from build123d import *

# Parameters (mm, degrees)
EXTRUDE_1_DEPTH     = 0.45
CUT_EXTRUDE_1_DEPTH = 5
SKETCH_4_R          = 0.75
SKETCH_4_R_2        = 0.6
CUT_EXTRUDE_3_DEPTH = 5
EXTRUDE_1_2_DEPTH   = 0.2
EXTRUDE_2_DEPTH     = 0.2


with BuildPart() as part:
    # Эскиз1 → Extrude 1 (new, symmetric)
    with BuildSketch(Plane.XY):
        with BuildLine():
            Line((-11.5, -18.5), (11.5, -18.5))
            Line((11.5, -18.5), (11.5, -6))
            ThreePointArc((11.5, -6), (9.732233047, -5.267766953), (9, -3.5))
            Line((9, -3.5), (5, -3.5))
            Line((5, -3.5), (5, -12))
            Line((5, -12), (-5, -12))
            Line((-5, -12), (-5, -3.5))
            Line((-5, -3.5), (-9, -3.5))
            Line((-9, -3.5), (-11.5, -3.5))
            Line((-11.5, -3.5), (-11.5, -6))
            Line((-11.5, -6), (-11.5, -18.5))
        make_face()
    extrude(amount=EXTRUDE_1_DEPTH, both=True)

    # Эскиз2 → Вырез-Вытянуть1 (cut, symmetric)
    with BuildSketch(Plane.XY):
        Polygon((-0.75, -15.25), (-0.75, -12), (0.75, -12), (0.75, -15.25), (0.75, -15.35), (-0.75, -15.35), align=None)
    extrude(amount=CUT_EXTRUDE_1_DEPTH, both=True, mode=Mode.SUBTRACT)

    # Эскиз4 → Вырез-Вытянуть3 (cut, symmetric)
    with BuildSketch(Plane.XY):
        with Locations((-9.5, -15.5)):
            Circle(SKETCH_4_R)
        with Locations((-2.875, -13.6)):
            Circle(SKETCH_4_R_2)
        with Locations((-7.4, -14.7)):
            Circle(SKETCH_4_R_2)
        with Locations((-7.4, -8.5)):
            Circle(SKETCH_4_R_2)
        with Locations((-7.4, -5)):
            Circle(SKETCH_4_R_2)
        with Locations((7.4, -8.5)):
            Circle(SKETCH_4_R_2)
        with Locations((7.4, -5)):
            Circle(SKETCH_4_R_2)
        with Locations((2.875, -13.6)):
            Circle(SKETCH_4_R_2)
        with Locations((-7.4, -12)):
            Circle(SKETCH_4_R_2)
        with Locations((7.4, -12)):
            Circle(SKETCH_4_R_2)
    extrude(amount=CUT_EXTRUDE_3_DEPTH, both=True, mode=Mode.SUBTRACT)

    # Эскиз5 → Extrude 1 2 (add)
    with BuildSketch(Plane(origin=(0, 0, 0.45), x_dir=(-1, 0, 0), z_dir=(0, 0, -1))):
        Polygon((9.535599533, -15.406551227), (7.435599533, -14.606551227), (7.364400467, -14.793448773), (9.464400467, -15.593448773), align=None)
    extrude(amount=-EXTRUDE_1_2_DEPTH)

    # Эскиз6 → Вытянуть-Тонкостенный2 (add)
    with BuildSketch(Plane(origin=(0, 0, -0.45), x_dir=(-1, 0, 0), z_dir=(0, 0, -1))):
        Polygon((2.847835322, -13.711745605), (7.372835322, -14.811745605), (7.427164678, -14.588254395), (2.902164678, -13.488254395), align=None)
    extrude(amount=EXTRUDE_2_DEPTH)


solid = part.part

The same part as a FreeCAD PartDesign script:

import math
import FreeCAD as App
import Part
import Sketcher
from FreeCAD import Vector


def add_polygon(sketch, points):
    """Adds a closed chain of lines whose ends are joined by coincident constraints."""
    first, n = sketch.GeometryCount, len(points)
    for a, b in zip(points, points[1:] + points[:1]):
        sketch.addGeometry(Part.LineSegment(App.Vector(*a, 0), App.Vector(*b, 0)), False)
    for i in range(n):
        sketch.addConstraint(Sketcher.Constraint("Coincident", first + i, 2, first + (i + 1) % n, 1))

doc = App.newDocument("Part")
params = doc.addObject("Spreadsheet::Sheet", "Params")
for row, (alias, value) in enumerate([
    ("sketch1_radius", "2.5 mm"),
    ("sketch1_width", "23 mm"),
    ("sketch1_width2", "4 mm"),
    ("sketch1_width3", "10 mm"),
    ("sketch1_height", "15 mm"),
    ("pad1_length", "0.9 mm"),
    ("sketch2_width", "1.5 mm"),
    ("sketch2_height", "3.35 mm"),
    ("pocket1_length", "10 mm"),
    ("sketch3_diameter", "1.5 mm"),
    ("sketch3_diameter2", "1.2 mm"),
    ("pocket2_length", "10 mm"),
    ("sketch4_length", "0.2 mm"),
    ("pad2_length", "0.2 mm"),
    ("sketch5_length", "0.23 mm"),
    ("pad3_length", "0.2 mm"),
], start=1):
    params.set(f"A{row}", alias)
    params.set(f"B{row}", "=" + value)
    params.setAlias(f"B{row}", alias)

body = doc.addObject("PartDesign::Body", "Body")

# Sketch on XY plane
sketch1 = body.newObject("Sketcher::SketchObject", "Sketch")
sketch1.AttachmentSupport = (doc.getObject("XY_Plane"), [""])
sketch1.MapMode = "FlatFace"
sketch1.addGeometry([
    Part.LineSegment(Vector(-11.5, -18.5, 0), Vector(11.5, -18.5, 0)),  # 0
    Part.LineSegment(Vector(11.5, -18.5, 0), Vector(11.5, -6, 0)),  # 1
    Part.ArcOfCircle(Part.Circle(Vector(11.5, -3.5, 0), Vector(0, 0, 1), 2.5), math.radians(180), math.radians(270)),  # 2
    Part.LineSegment(Vector(9, -3.5, 0), Vector(5, -3.5, 0)),  # 3
    Part.LineSegment(Vector(5, -3.5, 0), Vector(5, -12, 0)),  # 4
    Part.LineSegment(Vector(5, -12, 0), Vector(-5, -12, 0)),  # 5
    Part.LineSegment(Vector(-5, -12, 0), Vector(-5, -3.5, 0)),  # 6
    Part.LineSegment(Vector(-5, -3.5, 0), Vector(-11.5, -3.5, 0)),  # 7
    Part.LineSegment(Vector(-11.5, -3.5, 0), Vector(-11.5, -18.5, 0)),  # 8
], False)
sketch1.addConstraint([
    Sketcher.Constraint("Coincident", 0, 2, 1, 1),
    Sketcher.Constraint("Coincident", 1, 2, 2, 2),
    Sketcher.Constraint("Coincident", 2, 1, 3, 1),
    Sketcher.Constraint("Coincident", 3, 2, 4, 1),
    Sketcher.Constraint("Coincident", 4, 2, 5, 1),
    Sketcher.Constraint("Coincident", 5, 2, 6, 1),
    Sketcher.Constraint("Coincident", 6, 2, 7, 1),
    Sketcher.Constraint("Coincident", 7, 2, 8, 1),
    Sketcher.Constraint("Coincident", 8, 2, 0, 1),
    Sketcher.Constraint("Horizontal", 0),
    Sketcher.Constraint("Vertical", 1),
    Sketcher.Constraint("Horizontal", 3),
    Sketcher.Constraint("Vertical", 4),
    Sketcher.Constraint("Horizontal", 5),
    Sketcher.Constraint("Vertical", 6),
    Sketcher.Constraint("Horizontal", 7),
    Sketcher.Constraint("Vertical", 8),
    Sketcher.Constraint("Symmetric", 3, 2, 6, 2, -2),
    Sketcher.Constraint("Vertical", 2, 3, 0, 2),
    Sketcher.Constraint("Radius", 2, 2.5),
    Sketcher.Constraint("DistanceX", 0, 1, 0, 2, 23.0),
    Sketcher.Constraint("DistanceX", 3, 2, 3, 1, 4.0),
    Sketcher.Constraint("DistanceX", 5, 2, 5, 1, 10.0),
    Sketcher.Constraint("DistanceY", 8, 2, 8, 1, 15.0),
    Sketcher.Constraint("DistanceY", 1, 1, 1, 2, 12.5),
    Sketcher.Constraint("DistanceY", 4, 2, 4, 1, 8.5),
    Sketcher.Constraint("DistanceY", 1, 2, -1, 1, 6.0),
])
sketch1.setExpression("Constraints[19]", "Params.sketch1_radius")
sketch1.setExpression("Constraints[20]", "Params.sketch1_width")
sketch1.setExpression("Constraints[21]", "Params.sketch1_width2")
sketch1.setExpression("Constraints[22]", "Params.sketch1_width3")
sketch1.setExpression("Constraints[23]", "Params.sketch1_height")
pad1 = body.newObject("PartDesign::Pad", "Pad")
pad1.Profile = sketch1
pad1.setExpression("Length", "Params.pad1_length")
pad1.Midplane = True

# Sketch on XY plane
sketch2 = body.newObject("Sketcher::SketchObject", "Sketch001")
sketch2.AttachmentSupport = (doc.getObject("XY_Plane"), [""])
sketch2.MapMode = "FlatFace"
add_polygon(sketch2, [(-0.8, -12), (-0.8, -15.3), (0.8, -15.3), (0.8, -12)])  # lines 0-3
sketch2.addConstraint([
    Sketcher.Constraint("Vertical", 0),
    Sketcher.Constraint("Horizontal", 1),
    Sketcher.Constraint("Vertical", 2),
    Sketcher.Constraint("Horizontal", 3),
    Sketcher.Constraint("DistanceX", 1, 1, 1, 2, 1.5),
    Sketcher.Constraint("DistanceY", 2, 2, -1, 1, 12.0),
    Sketcher.Constraint("DistanceY", 0, 2, 0, 1, 3.35),
    Sketcher.Constraint("DistanceX", 0, 2, -1, 1, 0.75),
])
sketch2.setExpression("Constraints[8]", "Params.sketch2_width")
sketch2.setExpression("Constraints[10]", "Params.sketch2_height")
pocket1 = body.newObject("PartDesign::Pocket", "Pocket")
pocket1.Profile = sketch2
pocket1.setExpression("Length", "Params.pocket1_length")
pocket1.Midplane = True

# Sketch on XY plane
sketch3 = body.newObject("Sketcher::SketchObject", "Sketch002")
sketch3.AttachmentSupport = (doc.getObject("XY_Plane"), [""])
sketch3.MapMode = "FlatFace"
sketch3.addGeometry([
    Part.Circle(Vector(-9.5, -15.5, 0), Vector(0, 0, 1), 0.8),  # 0
    Part.Circle(Vector(-2.9, -13.6, 0), Vector(0, 0, 1), 0.6),  # 1
    Part.Circle(Vector(-7.4, -14.7, 0), Vector(0, 0, 1), 0.6),  # 2
    Part.Circle(Vector(-7.4, -8.5, 0), Vector(0, 0, 1), 0.6),  # 3
    Part.Circle(Vector(-7.4, -5, 0), Vector(0, 0, 1), 0.6),  # 4
    Part.Circle(Vector(7.4, -8.5, 0), Vector(0, 0, 1), 0.6),  # 5
    Part.Circle(Vector(7.4, -5, 0), Vector(0, 0, 1), 0.6),  # 6
    Part.Circle(Vector(2.9, -13.6, 0), Vector(0, 0, 1), 0.6),  # 7
    Part.Circle(Vector(-7.4, -12, 0), Vector(0, 0, 1), 0.6),  # 8
    Part.Circle(Vector(7.4, -12, 0), Vector(0, 0, 1), 0.6),  # 9
], False)
sketch3.addConstraint([
    Sketcher.Constraint("Equal", 1, 2),
    Sketcher.Constraint("Equal", 2, 3),
    Sketcher.Constraint("Equal", 3, 4),
    Sketcher.Constraint("Equal", 4, 5),
    Sketcher.Constraint("Equal", 5, 6),
    Sketcher.Constraint("Equal", 6, 7),
    Sketcher.Constraint("Equal", 7, 8),
    Sketcher.Constraint("Equal", 8, 9),
    Sketcher.Constraint("Symmetric", 3, 3, 5, 3, -2),
    Sketcher.Constraint("Symmetric", 4, 3, 6, 3, -2),
    Sketcher.Constraint("Symmetric", 1, 3, 7, 3, -2),
    Sketcher.Constraint("Symmetric", 8, 3, 9, 3, -2),
    Sketcher.Constraint("Vertical", 2, 3, 3, 3),
    Sketcher.Constraint("Vertical", 3, 3, 4, 3),
    Sketcher.Constraint("Vertical", 4, 3, 8, 3),
    Sketcher.Constraint("Diameter", 0, 1.5),
    Sketcher.Constraint("Diameter", 1, 1.2),
    Sketcher.Constraint("DistanceY", 4, 3, -1, 1, 5.0),
    Sketcher.Constraint("DistanceY", 8, 3, -1, 1, 12.0),
    Sketcher.Constraint("DistanceY", 0, 3, 3, 3, 7.0),
    Sketcher.Constraint("DistanceX", 0, 3, -1, 1, 9.5),
    Sketcher.Constraint("DistanceY", 0, 3, -1, 1, 15.5),
    Sketcher.Constraint("DistanceY", 1, 3, -1, 1, 13.6),
    Sketcher.Constraint("DistanceX", 2, 3, -1, 1, 7.4),
    Sketcher.Constraint("DistanceY", 2, 3, -1, 1, 14.7),
    Sketcher.Constraint("DistanceX", 1, 3, 7, 3, 5.75),
])
sketch3.setExpression("Constraints[15]", "Params.sketch3_diameter")
sketch3.setExpression("Constraints[16]", "Params.sketch3_diameter2")
pocket2 = body.newObject("PartDesign::Pocket", "Pocket001")
pocket2.Profile = sketch3
pocket2.setExpression("Length", "Params.pocket2_length")
pocket2.Midplane = True

# Sketch on XY plane
sketch4 = body.newObject("Sketcher::SketchObject", "Sketch003")
sketch4.AttachmentSupport = (doc.getObject("XY_Plane"), [""])
sketch4.MapMode = "FlatFace"
sketch4.AttachmentOffset = App.Placement(Vector(0, 0, 0.45), App.Rotation())
add_polygon(sketch4, [(-9.54, -15.41), (-7.44, -14.61), (-7.36, -14.79), (-9.46, -15.59)])  # lines 0-3
sketch4.addConstraint([
    Sketcher.Constraint("Perpendicular", 0, 1),
    Sketcher.Constraint("Perpendicular", 1, 2),
    Sketcher.Constraint("Perpendicular", 2, 3),
    Sketcher.Constraint("Distance", 1, 0.2),
    Sketcher.Constraint("DistanceX", 2, 2, 1, 2, 2.1),
    Sketcher.Constraint("DistanceY", 2, 2, 1, 2, 0.8),
    Sketcher.Constraint("DistanceX", 0, 2, -1, 1, 7.4356),
    Sketcher.Constraint("DistanceY", 0, 2, -1, 1, 14.606551),
])
sketch4.setExpression("Constraints[7]", "Params.sketch4_length")
pad2 = body.newObject("PartDesign::Pad", "Pad001")
pad2.Profile = sketch4
pad2.setExpression("Length", "Params.pad2_length")

# Sketch on XY plane
sketch5 = body.newObject("Sketcher::SketchObject", "Sketch004")
sketch5.AttachmentSupport = (doc.getObject("XY_Plane"), [""])
sketch5.MapMode = "FlatFace"
sketch5.AttachmentOffset = App.Placement(Vector(0, 0, -0.45), App.Rotation())
add_polygon(sketch5, [(-2.85, -13.71), (-7.37, -14.81), (-7.43, -14.59), (-2.9, -13.49)])  # lines 0-3
sketch5.addConstraint([
    Sketcher.Constraint("Perpendicular", 0, 1),
    Sketcher.Constraint("Perpendicular", 1, 2),
    Sketcher.Constraint("Perpendicular", 2, 3),
    Sketcher.Constraint("DistanceY", 1, 2, 2, 2, 1.1),
    Sketcher.Constraint("Distance", 1, 0.23),
    Sketcher.Constraint("DistanceX", 1, 2, 2, 2, 4.525),
    Sketcher.Constraint("DistanceX", 0, 2, -1, 1, 7.372835),
    Sketcher.Constraint("DistanceY", 0, 2, -1, 1, 14.811746),
])
sketch5.setExpression("Constraints[8]", "Params.sketch5_length")
pad3 = body.newObject("PartDesign::Pad", "Pad002")
pad3.Profile = sketch5
pad3.setExpression("Length", "Params.pad3_length")
pad3.Reversed = True

doc.recompute()
